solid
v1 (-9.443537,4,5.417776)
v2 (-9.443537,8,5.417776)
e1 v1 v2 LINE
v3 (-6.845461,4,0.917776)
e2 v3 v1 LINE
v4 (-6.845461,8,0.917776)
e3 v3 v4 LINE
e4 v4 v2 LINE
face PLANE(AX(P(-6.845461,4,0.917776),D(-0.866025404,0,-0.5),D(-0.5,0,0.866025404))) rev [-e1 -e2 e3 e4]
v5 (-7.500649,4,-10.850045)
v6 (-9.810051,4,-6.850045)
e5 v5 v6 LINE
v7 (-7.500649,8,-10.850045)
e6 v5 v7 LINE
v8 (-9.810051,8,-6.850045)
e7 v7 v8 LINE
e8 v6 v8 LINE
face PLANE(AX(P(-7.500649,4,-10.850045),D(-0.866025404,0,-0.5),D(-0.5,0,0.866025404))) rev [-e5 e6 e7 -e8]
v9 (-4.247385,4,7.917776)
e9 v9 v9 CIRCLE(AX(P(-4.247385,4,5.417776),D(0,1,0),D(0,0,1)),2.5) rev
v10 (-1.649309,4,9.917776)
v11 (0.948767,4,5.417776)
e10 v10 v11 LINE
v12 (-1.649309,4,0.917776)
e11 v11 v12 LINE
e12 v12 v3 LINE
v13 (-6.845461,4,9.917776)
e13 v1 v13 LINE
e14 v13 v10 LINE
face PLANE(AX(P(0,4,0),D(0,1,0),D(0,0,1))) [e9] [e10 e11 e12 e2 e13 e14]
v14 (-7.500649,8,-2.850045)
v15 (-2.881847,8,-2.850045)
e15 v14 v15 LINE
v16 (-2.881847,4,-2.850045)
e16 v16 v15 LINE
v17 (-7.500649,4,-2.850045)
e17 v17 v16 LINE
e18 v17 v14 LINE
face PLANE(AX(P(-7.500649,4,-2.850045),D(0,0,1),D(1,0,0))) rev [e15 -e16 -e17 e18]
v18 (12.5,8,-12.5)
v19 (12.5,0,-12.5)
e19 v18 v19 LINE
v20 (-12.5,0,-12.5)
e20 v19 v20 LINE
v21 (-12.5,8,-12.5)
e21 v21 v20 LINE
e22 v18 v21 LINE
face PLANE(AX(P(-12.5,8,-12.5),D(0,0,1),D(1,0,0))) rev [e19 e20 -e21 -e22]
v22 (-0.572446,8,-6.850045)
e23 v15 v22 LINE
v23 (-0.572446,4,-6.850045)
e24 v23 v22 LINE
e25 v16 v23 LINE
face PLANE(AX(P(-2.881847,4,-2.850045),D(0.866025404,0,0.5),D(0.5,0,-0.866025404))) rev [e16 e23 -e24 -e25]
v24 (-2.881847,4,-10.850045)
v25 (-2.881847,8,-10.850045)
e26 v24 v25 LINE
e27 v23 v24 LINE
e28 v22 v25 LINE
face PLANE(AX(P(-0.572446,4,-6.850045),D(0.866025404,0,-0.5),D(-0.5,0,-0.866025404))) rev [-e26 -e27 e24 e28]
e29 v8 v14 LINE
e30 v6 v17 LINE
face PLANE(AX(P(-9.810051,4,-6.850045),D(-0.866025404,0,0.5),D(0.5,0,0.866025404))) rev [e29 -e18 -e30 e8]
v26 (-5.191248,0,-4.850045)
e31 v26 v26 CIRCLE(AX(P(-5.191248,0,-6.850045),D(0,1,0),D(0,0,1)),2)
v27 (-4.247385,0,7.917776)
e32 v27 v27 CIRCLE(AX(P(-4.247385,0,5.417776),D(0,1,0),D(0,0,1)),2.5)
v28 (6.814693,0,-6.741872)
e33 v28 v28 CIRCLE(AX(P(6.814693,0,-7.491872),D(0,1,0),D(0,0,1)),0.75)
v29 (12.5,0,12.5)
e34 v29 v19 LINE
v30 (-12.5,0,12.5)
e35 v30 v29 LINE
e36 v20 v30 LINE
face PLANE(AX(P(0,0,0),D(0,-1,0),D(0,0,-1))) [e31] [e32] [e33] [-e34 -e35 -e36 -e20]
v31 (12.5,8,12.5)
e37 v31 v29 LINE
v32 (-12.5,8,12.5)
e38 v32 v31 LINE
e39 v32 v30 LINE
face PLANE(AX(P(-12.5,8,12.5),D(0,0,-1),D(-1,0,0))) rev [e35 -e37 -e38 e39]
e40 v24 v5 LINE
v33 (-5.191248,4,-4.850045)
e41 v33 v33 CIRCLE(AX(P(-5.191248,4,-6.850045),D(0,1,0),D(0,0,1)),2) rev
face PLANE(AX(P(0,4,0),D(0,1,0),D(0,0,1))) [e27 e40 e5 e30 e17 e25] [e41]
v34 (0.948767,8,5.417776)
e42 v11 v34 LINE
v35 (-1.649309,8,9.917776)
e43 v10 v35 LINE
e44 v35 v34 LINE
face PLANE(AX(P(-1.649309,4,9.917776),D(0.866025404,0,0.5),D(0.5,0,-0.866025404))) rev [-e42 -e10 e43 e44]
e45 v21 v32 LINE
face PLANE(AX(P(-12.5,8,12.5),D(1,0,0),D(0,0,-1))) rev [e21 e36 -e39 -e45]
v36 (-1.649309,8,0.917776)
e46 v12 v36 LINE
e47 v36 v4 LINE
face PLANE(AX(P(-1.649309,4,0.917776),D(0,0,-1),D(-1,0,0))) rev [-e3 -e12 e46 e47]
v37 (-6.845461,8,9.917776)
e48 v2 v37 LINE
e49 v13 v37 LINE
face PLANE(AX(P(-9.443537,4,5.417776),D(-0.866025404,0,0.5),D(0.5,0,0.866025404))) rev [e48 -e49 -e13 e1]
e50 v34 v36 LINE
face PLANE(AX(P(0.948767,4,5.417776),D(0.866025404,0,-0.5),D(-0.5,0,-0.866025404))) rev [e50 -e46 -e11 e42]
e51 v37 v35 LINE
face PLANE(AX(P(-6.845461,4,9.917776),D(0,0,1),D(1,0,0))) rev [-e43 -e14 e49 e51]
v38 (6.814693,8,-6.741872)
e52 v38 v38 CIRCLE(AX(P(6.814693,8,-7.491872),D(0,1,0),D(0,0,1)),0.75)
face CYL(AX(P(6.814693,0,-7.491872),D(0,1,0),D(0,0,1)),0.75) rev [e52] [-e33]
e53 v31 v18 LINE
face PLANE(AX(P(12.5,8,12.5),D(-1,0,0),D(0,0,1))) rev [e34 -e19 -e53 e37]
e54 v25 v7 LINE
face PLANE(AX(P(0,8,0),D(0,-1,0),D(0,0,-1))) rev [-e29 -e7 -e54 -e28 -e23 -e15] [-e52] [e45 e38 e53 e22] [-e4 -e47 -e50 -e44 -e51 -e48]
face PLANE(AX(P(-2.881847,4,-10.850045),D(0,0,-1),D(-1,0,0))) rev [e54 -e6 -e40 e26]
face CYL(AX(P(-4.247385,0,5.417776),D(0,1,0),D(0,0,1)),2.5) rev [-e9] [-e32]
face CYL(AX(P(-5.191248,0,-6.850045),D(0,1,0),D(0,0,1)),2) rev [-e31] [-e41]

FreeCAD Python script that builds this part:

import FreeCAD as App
import Part
import Sketcher
Q = App.Units.Quantity


def add_polygon(sketch, points):
    """Adds a closed chain of lines whose ends are joined by coincident constraints."""
    first, n = sketch.GeometryCount, len(points)
    for a, b in zip(points, points[1:] + points[:1]):
        sketch.addGeometry(Part.LineSegment(App.Vector(*a, 0), App.Vector(*b, 0)), False)
    for i in range(n):
        sketch.addConstraint(Sketcher.Constraint("Coincident", first + i, 2, first + (i + 1) % n, 1))

doc = App.newDocument("Part")
body = doc.addObject("PartDesign::Body", "Body")

sketch1 = body.newObject("Sketcher::SketchObject", "Sketch")
sketch1.AttachmentSupport = (doc.getObject("XZ_Plane"), [""])
sketch1.MapMode = "FlatFace"
add_polygon(sketch1, [(-12.5, -12.5), (-12.5, 12.5), (12.5, 12.5), (12.5, -12.5)])
sketch1.addConstraint(Sketcher.Constraint("Vertical", 0))
sketch1.addConstraint(Sketcher.Constraint("Horizontal", 1))
sketch1.addConstraint(Sketcher.Constraint("Vertical", 2))
sketch1.addConstraint(Sketcher.Constraint("Horizontal", 3))
sketch1.addConstraint(Sketcher.Constraint("Symmetric", 0, 2, 2, 2, -1, 1))
sketch1.addConstraint(Sketcher.Constraint("Equal", 3, 0))
sketch1.addConstraint(Sketcher.Constraint("DistanceX", 1, 1, 1, 2, 25.0))
pad1 = body.newObject("PartDesign::Pad", "Pad")
pad1.Profile = sketch1
pad1.Length = 8
pad1.Reversed = True

sketch2 = body.newObject("Sketcher::SketchObject", "Sketch001")
sketch2.AttachmentSupport = (doc.getObject("XZ_Plane"), [""])
sketch2.MapMode = "FlatFace"
sketch2.AttachmentOffset = App.Placement(App.Vector(0, 0, -8), App.Rotation())
sketch2.addGeometry(Part.Circle(App.Vector(-5.191248, -6.850045, 0), App.Vector(0, 0, 1), 2), False)
sketch2.addGeometry(Part.Circle(App.Vector(6.814693, -7.491872, 0), App.Vector(0, 0, 1), 0.75), False)
sketch2.addGeometry(Part.Circle(App.Vector(-4.247385, 5.417776, 0), App.Vector(0, 0, 1), 2.5), False)
sketch2.addConstraint(Sketcher.Constraint("Diameter", 0, 4.0))
sketch2.addConstraint(Sketcher.Constraint("Diameter", 2, 5.0))
sketch2.addConstraint(Sketcher.Constraint("Diameter", 1, 1.5))
sketch2.addConstraint(Sketcher.Constraint("DistanceX", 0, 3, -1, 1, 5.191248))
sketch2.addConstraint(Sketcher.Constraint("DistanceX", 0, 3, 1, 3, 12.005942))
sketch2.addConstraint(Sketcher.Constraint("DistanceY", 0, 3, 2, 3, 12.267821))
sketch2.addConstraint(Sketcher.Constraint("DistanceX", 2, 3, 1, 3, 11.062078))
sketch2.addConstraint(Sketcher.Constraint("DistanceY", 1, 3, 2, 3, 12.909648))
sketch2.addConstraint(Sketcher.Constraint("DistanceY", 0, 3, -1, 1, 6.850045))
pocket1 = body.newObject("PartDesign::Pocket", "Pocket")
pocket1.Profile = sketch2
pocket1.Length = 8
pocket1.Reversed = True

sketch3 = body.newObject("Sketcher::SketchObject", "Sketch002")
sketch3.AttachmentSupport = (doc.getObject("XZ_Plane"), [""])
sketch3.MapMode = "FlatFace"
sketch3.AttachmentOffset = App.Placement(App.Vector(0, 0, -8), App.Rotation())
add_polygon(sketch3, [(-0.572446, -6.850045), (-2.881847, -10.850045), (-7.500649, -10.850045), (-9.810051, -6.850045), (-7.500649, -2.850045), (-2.881847, -2.850045)])
add_polygon(sketch3, [(0.948767, 5.417776), (-1.649309, 0.917776), (-6.845461, 0.917776), (-9.443537, 5.417776), (-6.845461, 9.917776), (-1.649309, 9.917776)])
sketch3.addConstraint(Sketcher.Constraint("Horizontal", 1))
sketch3.addConstraint(Sketcher.Constraint("Horizontal", 4))
sketch3.addConstraint(Sketcher.Constraint("Horizontal", 7))
sketch3.addConstraint(Sketcher.Constraint("Horizontal", 10))
sketch3.addConstraint(Sketcher.Constraint("Parallel", 0, 3))
sketch3.addConstraint(Sketcher.Constraint("Parallel", 2, 5))
sketch3.addConstraint(Sketcher.Constraint("Parallel", 3, 6))
sketch3.addConstraint(Sketcher.Constraint("Parallel", 5, 8))
sketch3.addConstraint(Sketcher.Constraint("Parallel", 6, 9))
sketch3.addConstraint(Sketcher.Constraint("Parallel", 8, 11))
sketch3.addConstraint(Sketcher.Constraint("Horizontal", 2, 2, 5, 2))
sketch3.addConstraint(Sketcher.Constraint("Horizontal", 8, 2, 11, 2))
sketch3.addConstraint(Sketcher.Constraint("Vertical", 1, 2, 3, 2))
sketch3.addConstraint(Sketcher.Constraint("Vertical", 0, 2, 4, 2))
sketch3.addConstraint(Sketcher.Constraint("Vertical", 7, 2, 9, 2))
sketch3.addConstraint(Sketcher.Constraint("Angle", 0, Q("-120 deg")))
sketch3.addConstraint(Sketcher.Constraint("DistanceY", 1, 2, 2, 2, 4.0))
sketch3.addConstraint(Sketcher.Constraint("DistanceY", 7, 2, 9, 2, 9.0))
sketch3.addConstraint(Sketcher.Constraint("DistanceX", 1, 2, 1, 1, 4.618802))
sketch3.addConstraint(Sketcher.Constraint("DistanceX", 7, 2, 7, 1, 5.196152))
sketch3.addConstraint(Sketcher.Constraint("DistanceX", 1, 2, -1, 1, 7.500649))
sketch3.addConstraint(Sketcher.Constraint("DistanceX", 6, 2, -1, 1, 1.649309))
sketch3.addConstraint(Sketcher.Constraint("DistanceY", 4, 2, 6, 2, 3.767821))
sketch3.addConstraint(Sketcher.Constraint("DistanceY", 0, 2, -1, 1, 10.850045))
pocket2 = body.newObject("PartDesign::Pocket", "Pocket001")
pocket2.Profile = sketch3
pocket2.Length = 4
pocket2.Reversed = True

doc.recompute()
